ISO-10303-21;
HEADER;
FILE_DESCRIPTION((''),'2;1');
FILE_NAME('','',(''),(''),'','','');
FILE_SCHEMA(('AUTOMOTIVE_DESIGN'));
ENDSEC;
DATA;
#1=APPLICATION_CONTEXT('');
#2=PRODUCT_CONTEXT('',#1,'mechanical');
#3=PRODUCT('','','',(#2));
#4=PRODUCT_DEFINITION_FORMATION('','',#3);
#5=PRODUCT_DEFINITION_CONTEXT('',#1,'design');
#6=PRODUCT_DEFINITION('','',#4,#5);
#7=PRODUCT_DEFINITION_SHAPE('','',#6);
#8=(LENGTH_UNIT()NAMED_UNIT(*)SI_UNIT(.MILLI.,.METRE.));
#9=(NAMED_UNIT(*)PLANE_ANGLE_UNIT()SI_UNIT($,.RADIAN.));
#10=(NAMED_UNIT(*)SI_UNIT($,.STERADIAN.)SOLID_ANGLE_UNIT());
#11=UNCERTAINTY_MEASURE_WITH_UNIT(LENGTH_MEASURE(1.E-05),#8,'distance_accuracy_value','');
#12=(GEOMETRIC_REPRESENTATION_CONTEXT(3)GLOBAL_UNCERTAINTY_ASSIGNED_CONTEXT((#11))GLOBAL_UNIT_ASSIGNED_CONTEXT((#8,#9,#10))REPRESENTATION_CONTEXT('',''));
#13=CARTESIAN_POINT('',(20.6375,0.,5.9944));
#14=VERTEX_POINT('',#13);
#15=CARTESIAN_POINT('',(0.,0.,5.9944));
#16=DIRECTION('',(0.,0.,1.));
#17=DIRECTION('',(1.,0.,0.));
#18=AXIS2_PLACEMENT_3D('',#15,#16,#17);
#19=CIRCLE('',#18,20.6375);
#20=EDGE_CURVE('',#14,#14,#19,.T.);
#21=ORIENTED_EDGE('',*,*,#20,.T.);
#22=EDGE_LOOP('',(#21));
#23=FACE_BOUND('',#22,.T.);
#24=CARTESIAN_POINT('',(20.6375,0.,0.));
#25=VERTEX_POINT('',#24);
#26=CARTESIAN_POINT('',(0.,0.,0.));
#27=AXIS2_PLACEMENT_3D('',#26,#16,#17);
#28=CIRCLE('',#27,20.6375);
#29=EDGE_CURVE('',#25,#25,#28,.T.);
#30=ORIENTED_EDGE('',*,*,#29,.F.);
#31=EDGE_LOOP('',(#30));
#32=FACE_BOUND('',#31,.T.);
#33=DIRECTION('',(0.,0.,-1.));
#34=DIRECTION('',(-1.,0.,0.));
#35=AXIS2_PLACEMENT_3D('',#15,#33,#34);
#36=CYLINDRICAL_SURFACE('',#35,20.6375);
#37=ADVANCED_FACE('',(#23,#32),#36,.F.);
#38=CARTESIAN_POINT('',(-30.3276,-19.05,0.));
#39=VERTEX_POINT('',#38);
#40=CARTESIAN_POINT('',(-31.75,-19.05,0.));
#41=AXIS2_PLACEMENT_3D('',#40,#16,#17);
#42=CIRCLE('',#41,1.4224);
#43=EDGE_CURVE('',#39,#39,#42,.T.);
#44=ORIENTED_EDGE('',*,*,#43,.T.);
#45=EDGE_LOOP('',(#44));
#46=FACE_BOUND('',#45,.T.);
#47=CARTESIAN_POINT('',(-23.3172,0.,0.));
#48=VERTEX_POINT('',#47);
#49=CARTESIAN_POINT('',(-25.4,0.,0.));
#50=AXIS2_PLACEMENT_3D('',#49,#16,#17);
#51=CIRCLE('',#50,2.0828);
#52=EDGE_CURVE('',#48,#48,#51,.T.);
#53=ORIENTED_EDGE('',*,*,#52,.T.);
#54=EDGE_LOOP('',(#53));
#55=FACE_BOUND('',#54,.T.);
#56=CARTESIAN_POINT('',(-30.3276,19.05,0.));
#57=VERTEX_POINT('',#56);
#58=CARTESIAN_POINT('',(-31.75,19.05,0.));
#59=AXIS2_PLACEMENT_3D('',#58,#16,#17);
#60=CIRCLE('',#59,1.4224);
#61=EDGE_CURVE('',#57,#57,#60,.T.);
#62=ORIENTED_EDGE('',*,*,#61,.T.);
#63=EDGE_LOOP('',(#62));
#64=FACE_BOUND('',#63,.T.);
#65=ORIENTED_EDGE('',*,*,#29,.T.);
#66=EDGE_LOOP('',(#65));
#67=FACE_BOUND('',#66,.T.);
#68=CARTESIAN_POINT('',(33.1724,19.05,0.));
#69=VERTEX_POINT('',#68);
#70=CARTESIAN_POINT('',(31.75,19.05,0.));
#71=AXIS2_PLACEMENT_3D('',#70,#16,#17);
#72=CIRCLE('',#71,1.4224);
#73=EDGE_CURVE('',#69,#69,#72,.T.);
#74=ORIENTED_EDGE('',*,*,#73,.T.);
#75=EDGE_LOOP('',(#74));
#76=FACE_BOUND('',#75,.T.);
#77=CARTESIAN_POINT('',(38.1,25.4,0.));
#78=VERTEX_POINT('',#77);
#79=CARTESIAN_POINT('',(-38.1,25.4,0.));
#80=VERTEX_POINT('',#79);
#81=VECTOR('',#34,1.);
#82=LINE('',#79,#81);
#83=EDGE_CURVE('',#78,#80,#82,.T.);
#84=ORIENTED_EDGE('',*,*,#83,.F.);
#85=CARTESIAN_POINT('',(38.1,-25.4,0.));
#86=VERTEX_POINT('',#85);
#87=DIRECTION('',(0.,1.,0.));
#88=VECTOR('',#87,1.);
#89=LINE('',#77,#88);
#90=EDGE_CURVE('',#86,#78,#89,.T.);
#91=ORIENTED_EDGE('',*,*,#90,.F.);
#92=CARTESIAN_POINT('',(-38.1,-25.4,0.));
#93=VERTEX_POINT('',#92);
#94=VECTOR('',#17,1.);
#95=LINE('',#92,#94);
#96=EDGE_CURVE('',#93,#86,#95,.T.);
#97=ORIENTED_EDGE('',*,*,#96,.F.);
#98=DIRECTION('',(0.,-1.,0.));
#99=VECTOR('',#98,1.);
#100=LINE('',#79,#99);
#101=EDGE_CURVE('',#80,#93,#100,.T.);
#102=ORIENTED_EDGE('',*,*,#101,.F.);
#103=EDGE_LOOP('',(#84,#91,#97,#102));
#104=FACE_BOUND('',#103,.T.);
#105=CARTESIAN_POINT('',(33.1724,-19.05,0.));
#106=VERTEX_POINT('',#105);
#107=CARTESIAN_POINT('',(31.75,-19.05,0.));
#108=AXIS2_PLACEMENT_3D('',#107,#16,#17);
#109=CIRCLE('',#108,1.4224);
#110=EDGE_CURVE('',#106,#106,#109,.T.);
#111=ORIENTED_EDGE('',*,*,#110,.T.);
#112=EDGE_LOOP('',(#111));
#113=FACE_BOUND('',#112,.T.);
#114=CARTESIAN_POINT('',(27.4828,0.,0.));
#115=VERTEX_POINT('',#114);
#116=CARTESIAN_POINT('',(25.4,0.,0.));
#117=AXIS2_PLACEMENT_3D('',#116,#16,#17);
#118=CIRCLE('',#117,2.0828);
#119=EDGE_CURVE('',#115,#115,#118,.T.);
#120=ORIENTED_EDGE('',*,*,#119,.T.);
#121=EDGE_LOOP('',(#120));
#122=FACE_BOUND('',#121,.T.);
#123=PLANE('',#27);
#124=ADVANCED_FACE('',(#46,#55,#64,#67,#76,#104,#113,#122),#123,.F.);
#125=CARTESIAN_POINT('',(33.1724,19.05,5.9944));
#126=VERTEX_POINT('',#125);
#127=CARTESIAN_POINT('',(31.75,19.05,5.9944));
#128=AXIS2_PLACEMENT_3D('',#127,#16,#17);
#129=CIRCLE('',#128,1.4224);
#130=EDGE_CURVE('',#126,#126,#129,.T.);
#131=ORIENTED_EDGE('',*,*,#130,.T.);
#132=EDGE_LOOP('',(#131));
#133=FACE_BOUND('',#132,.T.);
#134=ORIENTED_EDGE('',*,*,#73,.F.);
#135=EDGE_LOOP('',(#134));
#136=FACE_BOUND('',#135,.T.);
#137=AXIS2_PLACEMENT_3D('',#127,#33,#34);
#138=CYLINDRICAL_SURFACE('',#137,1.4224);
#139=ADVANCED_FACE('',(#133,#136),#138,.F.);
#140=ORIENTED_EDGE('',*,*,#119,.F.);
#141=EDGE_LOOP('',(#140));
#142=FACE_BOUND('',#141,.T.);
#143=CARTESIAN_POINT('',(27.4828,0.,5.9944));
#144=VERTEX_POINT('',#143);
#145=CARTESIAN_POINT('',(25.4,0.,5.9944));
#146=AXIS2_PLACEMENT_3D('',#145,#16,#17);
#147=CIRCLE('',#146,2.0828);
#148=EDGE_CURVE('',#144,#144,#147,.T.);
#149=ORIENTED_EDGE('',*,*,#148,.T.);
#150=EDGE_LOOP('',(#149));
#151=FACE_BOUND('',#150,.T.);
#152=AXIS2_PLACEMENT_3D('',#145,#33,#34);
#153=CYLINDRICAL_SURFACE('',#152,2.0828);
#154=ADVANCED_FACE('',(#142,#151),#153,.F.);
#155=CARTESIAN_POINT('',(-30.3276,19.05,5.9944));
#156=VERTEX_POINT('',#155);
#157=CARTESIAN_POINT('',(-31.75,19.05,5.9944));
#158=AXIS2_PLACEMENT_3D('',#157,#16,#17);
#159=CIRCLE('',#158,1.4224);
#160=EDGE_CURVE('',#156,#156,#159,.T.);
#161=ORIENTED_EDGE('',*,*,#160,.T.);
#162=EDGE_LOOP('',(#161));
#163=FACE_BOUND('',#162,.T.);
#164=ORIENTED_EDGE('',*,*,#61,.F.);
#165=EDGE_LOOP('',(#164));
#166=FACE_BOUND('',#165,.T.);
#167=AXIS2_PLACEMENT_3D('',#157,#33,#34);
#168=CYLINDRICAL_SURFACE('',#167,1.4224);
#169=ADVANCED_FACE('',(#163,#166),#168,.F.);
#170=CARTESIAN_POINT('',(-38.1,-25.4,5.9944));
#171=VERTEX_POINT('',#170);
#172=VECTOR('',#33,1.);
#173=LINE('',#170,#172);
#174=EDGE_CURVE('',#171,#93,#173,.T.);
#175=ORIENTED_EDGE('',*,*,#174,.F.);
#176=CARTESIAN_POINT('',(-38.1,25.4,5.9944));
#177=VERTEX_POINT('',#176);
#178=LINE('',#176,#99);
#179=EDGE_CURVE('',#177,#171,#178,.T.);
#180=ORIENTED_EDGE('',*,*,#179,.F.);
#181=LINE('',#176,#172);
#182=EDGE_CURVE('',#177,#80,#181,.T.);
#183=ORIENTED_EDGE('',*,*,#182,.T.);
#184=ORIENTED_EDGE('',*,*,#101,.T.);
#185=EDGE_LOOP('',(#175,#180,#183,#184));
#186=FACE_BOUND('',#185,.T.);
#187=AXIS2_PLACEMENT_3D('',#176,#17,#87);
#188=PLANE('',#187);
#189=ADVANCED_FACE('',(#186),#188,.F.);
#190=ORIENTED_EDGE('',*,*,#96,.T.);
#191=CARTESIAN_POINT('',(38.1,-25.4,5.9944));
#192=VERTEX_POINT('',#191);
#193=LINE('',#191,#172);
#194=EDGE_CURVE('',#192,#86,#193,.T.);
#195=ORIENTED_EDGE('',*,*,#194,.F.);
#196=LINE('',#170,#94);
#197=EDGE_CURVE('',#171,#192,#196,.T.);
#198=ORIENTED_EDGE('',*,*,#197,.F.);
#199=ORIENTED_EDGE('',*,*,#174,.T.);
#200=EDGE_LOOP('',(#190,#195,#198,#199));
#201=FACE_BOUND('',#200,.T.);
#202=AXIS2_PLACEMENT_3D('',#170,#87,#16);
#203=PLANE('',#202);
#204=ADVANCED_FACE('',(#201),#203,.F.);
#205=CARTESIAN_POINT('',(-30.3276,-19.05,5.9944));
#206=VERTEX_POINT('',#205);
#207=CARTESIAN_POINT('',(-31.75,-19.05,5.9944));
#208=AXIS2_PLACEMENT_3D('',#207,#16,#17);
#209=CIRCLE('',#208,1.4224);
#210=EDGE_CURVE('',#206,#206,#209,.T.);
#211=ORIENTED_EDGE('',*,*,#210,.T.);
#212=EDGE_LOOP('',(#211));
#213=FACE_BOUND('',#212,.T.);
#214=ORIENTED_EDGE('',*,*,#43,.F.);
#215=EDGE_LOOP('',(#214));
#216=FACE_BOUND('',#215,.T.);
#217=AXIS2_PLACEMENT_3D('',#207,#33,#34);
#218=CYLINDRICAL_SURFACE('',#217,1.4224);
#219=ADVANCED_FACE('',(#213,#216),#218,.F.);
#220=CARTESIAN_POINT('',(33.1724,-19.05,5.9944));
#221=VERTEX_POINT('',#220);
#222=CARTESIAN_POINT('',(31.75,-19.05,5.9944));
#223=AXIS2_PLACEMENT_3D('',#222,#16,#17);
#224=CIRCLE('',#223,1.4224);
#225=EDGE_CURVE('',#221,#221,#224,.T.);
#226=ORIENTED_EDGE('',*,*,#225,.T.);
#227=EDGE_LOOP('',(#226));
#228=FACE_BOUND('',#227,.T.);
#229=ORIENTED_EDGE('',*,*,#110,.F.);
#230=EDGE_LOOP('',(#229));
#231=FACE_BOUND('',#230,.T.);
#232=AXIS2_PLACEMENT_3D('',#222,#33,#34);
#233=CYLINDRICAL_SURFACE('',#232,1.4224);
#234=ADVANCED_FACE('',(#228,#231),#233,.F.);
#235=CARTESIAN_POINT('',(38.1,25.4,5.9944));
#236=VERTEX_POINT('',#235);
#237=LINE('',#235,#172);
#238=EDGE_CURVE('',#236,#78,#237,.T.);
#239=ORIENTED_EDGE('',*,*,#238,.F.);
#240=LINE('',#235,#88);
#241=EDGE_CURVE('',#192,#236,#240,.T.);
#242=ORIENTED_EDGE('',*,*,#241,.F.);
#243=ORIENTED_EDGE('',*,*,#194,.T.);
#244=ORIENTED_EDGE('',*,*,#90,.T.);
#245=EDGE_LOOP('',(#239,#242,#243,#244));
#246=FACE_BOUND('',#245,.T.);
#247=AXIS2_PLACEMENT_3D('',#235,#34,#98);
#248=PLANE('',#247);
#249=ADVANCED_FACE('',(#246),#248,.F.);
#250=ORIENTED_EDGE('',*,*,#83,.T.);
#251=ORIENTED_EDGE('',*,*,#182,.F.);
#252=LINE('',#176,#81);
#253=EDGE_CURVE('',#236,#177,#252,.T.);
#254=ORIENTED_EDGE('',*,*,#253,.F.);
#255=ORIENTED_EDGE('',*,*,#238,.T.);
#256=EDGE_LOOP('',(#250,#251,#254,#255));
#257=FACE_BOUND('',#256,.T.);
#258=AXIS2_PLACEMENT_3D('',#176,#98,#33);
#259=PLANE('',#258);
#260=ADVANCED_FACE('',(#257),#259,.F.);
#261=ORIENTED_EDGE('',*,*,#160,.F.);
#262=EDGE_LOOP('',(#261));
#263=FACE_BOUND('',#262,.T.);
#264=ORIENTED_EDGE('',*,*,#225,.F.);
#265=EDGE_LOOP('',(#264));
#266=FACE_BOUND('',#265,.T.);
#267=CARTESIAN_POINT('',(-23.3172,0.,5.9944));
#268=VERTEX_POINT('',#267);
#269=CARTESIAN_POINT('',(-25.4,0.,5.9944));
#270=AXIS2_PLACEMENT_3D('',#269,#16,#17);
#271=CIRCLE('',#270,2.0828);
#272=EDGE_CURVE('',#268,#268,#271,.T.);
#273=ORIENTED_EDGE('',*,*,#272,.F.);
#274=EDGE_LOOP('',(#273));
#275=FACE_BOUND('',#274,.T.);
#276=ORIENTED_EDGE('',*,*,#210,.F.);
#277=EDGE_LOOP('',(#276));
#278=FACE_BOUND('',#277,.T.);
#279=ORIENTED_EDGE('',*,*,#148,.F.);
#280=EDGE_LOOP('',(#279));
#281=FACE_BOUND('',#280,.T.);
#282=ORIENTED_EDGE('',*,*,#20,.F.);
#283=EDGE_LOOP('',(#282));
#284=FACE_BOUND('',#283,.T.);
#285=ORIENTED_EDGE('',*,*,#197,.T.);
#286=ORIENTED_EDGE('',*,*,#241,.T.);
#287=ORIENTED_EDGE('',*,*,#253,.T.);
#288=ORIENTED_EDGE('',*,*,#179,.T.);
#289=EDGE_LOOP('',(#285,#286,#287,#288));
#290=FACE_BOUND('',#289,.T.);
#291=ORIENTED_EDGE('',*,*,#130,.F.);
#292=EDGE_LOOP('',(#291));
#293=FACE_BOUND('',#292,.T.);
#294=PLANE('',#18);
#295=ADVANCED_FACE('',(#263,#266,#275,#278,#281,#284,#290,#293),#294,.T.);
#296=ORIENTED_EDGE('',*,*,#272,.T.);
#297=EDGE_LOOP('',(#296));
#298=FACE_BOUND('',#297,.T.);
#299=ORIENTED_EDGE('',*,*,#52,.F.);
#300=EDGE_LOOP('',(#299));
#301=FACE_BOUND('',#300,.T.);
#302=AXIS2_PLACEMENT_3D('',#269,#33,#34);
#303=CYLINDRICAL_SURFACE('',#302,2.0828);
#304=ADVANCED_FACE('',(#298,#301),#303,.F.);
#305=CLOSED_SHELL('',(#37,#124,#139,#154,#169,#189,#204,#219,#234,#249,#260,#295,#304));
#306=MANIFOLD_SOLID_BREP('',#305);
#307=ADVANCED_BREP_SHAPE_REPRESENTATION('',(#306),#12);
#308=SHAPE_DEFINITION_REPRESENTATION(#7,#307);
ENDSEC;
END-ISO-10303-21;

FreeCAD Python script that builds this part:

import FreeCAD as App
import Part
import Sketcher

V = App.Vector
Q = App.Units.Quantity

doc = App.newDocument("Part")
body = doc.addObject("PartDesign::Body", "Body")

# Sketch on XY plane
sketch1 = doc.addObject("Sketcher::SketchObject", "Sketch")
body.addObject(sketch1)
sketch1.AttachmentSupport = (doc.XY_Plane, [""])
sketch1.MapMode = "FlatFace"
sketch1.addGeometry(Part.LineSegment(V(-38.1, 25.4, 0), V(-38.1, -25.4, 0)), False)
sketch1.addGeometry(Part.LineSegment(V(-38.1, -25.4, 0), V(38.1, -25.4, 0)), False)
sketch1.addGeometry(Part.LineSegment(V(38.1, -25.4, 0), V(38.1, 25.4, 0)), False)
sketch1.addGeometry(Part.LineSegment(V(38.1, 25.4, 0), V(-38.1, 25.4, 0)), False)
sketch1.addGeometry(Part.Circle(V(-31.8, -19.1, 0), V(0, 0, 1), 1.4), False)
sketch1.addGeometry(Part.Circle(V(31.8, -19.1, 0), V(0, 0, 1), 1.4), False)
sketch1.addGeometry(Part.Circle(V(-25.4, 0, 0), V(0, 0, 1), 2.1), False)
sketch1.addGeometry(Part.Circle(V(-31.8, 19.1, 0), V(0, 0, 1), 1.4), False)
sketch1.addGeometry(Part.Circle(V(0, 0, 0), V(0, 0, 1), 20.6), False)
sketch1.addGeometry(Part.Circle(V(25.4, 0, 0), V(0, 0, 1), 2.1), False)
sketch1.addGeometry(Part.Circle(V(31.8, 19.1, 0), V(0, 0, 1), 1.4), False)
sketch1.addConstraint(Sketcher.Constraint("Coincident", 0, 2, 1, 1))
sketch1.addConstraint(Sketcher.Constraint("Coincident", 1, 2, 2, 1))
sketch1.addConstraint(Sketcher.Constraint("Coincident", 2, 2, 3, 1))
sketch1.addConstraint(Sketcher.Constraint("Coincident", 3, 2, 0, 1))
sketch1.addConstraint(Sketcher.Constraint("Vertical", 0))
sketch1.addConstraint(Sketcher.Constraint("Horizontal", 1))
sketch1.addConstraint(Sketcher.Constraint("Vertical", 2))
sketch1.addConstraint(Sketcher.Constraint("Horizontal", 3))
sketch1.addConstraint(Sketcher.Constraint("Coincident", 8, 3, -1, 1))
sketch1.addConstraint(Sketcher.Constraint("Equal", 4, 5))
sketch1.addConstraint(Sketcher.Constraint("Equal", 5, 7))
sketch1.addConstraint(Sketcher.Constraint("Equal", 6, 9))
sketch1.addConstraint(Sketcher.Constraint("Equal", 7, 10))
sketch1.addConstraint(Sketcher.Constraint("Symmetric", 5, 3, 7, 3, -1, 1))
sketch1.addConstraint(Sketcher.Constraint("Symmetric", 6, 3, 9, 3, -1, 1))
sketch1.addConstraint(Sketcher.Constraint("Symmetric", 4, 3, 10, 3, -1, 1))
sketch1.addConstraint(Sketcher.Constraint("Symmetric", 0, 2, 2, 2, -1, 1))
sketch1.addConstraint(Sketcher.Constraint("Symmetric", 4, 3, 5, 3, -2))
sketch1.addConstraint(Sketcher.Constraint("PointOnObject", 6, 3, -1))
sketch1.addConstraint(Sketcher.Constraint("DistanceX", 1, 1, 1, 2, Q("3 in")))
sketch1.addConstraint(Sketcher.Constraint("DistanceY", 0, 2, 0, 1, Q("2 in")))
sketch1.addConstraint(Sketcher.Constraint("Diameter", 4, Q("0.112 in")))
sketch1.addConstraint(Sketcher.Constraint("Diameter", 6, Q("0.164 in")))
sketch1.addConstraint(Sketcher.Constraint("Diameter", 8, Q("1.625 in")))
sketch1.addConstraint(Sketcher.Constraint("DistanceX", 6, 3, -1, 1, Q("1 in")))
sketch1.addConstraint(Sketcher.Constraint("DistanceX", 4, 3, 5, 3, Q("2.5 in")))
sketch1.addConstraint(Sketcher.Constraint("DistanceY", 4, 3, 7, 3, Q("1.5 in")))
pad1 = doc.addObject("PartDesign::Pad", "Pad")
body.addObject(pad1)
pad1.Profile = sketch1
pad1.Length = Q("0.236 in")

doc.recompute()
